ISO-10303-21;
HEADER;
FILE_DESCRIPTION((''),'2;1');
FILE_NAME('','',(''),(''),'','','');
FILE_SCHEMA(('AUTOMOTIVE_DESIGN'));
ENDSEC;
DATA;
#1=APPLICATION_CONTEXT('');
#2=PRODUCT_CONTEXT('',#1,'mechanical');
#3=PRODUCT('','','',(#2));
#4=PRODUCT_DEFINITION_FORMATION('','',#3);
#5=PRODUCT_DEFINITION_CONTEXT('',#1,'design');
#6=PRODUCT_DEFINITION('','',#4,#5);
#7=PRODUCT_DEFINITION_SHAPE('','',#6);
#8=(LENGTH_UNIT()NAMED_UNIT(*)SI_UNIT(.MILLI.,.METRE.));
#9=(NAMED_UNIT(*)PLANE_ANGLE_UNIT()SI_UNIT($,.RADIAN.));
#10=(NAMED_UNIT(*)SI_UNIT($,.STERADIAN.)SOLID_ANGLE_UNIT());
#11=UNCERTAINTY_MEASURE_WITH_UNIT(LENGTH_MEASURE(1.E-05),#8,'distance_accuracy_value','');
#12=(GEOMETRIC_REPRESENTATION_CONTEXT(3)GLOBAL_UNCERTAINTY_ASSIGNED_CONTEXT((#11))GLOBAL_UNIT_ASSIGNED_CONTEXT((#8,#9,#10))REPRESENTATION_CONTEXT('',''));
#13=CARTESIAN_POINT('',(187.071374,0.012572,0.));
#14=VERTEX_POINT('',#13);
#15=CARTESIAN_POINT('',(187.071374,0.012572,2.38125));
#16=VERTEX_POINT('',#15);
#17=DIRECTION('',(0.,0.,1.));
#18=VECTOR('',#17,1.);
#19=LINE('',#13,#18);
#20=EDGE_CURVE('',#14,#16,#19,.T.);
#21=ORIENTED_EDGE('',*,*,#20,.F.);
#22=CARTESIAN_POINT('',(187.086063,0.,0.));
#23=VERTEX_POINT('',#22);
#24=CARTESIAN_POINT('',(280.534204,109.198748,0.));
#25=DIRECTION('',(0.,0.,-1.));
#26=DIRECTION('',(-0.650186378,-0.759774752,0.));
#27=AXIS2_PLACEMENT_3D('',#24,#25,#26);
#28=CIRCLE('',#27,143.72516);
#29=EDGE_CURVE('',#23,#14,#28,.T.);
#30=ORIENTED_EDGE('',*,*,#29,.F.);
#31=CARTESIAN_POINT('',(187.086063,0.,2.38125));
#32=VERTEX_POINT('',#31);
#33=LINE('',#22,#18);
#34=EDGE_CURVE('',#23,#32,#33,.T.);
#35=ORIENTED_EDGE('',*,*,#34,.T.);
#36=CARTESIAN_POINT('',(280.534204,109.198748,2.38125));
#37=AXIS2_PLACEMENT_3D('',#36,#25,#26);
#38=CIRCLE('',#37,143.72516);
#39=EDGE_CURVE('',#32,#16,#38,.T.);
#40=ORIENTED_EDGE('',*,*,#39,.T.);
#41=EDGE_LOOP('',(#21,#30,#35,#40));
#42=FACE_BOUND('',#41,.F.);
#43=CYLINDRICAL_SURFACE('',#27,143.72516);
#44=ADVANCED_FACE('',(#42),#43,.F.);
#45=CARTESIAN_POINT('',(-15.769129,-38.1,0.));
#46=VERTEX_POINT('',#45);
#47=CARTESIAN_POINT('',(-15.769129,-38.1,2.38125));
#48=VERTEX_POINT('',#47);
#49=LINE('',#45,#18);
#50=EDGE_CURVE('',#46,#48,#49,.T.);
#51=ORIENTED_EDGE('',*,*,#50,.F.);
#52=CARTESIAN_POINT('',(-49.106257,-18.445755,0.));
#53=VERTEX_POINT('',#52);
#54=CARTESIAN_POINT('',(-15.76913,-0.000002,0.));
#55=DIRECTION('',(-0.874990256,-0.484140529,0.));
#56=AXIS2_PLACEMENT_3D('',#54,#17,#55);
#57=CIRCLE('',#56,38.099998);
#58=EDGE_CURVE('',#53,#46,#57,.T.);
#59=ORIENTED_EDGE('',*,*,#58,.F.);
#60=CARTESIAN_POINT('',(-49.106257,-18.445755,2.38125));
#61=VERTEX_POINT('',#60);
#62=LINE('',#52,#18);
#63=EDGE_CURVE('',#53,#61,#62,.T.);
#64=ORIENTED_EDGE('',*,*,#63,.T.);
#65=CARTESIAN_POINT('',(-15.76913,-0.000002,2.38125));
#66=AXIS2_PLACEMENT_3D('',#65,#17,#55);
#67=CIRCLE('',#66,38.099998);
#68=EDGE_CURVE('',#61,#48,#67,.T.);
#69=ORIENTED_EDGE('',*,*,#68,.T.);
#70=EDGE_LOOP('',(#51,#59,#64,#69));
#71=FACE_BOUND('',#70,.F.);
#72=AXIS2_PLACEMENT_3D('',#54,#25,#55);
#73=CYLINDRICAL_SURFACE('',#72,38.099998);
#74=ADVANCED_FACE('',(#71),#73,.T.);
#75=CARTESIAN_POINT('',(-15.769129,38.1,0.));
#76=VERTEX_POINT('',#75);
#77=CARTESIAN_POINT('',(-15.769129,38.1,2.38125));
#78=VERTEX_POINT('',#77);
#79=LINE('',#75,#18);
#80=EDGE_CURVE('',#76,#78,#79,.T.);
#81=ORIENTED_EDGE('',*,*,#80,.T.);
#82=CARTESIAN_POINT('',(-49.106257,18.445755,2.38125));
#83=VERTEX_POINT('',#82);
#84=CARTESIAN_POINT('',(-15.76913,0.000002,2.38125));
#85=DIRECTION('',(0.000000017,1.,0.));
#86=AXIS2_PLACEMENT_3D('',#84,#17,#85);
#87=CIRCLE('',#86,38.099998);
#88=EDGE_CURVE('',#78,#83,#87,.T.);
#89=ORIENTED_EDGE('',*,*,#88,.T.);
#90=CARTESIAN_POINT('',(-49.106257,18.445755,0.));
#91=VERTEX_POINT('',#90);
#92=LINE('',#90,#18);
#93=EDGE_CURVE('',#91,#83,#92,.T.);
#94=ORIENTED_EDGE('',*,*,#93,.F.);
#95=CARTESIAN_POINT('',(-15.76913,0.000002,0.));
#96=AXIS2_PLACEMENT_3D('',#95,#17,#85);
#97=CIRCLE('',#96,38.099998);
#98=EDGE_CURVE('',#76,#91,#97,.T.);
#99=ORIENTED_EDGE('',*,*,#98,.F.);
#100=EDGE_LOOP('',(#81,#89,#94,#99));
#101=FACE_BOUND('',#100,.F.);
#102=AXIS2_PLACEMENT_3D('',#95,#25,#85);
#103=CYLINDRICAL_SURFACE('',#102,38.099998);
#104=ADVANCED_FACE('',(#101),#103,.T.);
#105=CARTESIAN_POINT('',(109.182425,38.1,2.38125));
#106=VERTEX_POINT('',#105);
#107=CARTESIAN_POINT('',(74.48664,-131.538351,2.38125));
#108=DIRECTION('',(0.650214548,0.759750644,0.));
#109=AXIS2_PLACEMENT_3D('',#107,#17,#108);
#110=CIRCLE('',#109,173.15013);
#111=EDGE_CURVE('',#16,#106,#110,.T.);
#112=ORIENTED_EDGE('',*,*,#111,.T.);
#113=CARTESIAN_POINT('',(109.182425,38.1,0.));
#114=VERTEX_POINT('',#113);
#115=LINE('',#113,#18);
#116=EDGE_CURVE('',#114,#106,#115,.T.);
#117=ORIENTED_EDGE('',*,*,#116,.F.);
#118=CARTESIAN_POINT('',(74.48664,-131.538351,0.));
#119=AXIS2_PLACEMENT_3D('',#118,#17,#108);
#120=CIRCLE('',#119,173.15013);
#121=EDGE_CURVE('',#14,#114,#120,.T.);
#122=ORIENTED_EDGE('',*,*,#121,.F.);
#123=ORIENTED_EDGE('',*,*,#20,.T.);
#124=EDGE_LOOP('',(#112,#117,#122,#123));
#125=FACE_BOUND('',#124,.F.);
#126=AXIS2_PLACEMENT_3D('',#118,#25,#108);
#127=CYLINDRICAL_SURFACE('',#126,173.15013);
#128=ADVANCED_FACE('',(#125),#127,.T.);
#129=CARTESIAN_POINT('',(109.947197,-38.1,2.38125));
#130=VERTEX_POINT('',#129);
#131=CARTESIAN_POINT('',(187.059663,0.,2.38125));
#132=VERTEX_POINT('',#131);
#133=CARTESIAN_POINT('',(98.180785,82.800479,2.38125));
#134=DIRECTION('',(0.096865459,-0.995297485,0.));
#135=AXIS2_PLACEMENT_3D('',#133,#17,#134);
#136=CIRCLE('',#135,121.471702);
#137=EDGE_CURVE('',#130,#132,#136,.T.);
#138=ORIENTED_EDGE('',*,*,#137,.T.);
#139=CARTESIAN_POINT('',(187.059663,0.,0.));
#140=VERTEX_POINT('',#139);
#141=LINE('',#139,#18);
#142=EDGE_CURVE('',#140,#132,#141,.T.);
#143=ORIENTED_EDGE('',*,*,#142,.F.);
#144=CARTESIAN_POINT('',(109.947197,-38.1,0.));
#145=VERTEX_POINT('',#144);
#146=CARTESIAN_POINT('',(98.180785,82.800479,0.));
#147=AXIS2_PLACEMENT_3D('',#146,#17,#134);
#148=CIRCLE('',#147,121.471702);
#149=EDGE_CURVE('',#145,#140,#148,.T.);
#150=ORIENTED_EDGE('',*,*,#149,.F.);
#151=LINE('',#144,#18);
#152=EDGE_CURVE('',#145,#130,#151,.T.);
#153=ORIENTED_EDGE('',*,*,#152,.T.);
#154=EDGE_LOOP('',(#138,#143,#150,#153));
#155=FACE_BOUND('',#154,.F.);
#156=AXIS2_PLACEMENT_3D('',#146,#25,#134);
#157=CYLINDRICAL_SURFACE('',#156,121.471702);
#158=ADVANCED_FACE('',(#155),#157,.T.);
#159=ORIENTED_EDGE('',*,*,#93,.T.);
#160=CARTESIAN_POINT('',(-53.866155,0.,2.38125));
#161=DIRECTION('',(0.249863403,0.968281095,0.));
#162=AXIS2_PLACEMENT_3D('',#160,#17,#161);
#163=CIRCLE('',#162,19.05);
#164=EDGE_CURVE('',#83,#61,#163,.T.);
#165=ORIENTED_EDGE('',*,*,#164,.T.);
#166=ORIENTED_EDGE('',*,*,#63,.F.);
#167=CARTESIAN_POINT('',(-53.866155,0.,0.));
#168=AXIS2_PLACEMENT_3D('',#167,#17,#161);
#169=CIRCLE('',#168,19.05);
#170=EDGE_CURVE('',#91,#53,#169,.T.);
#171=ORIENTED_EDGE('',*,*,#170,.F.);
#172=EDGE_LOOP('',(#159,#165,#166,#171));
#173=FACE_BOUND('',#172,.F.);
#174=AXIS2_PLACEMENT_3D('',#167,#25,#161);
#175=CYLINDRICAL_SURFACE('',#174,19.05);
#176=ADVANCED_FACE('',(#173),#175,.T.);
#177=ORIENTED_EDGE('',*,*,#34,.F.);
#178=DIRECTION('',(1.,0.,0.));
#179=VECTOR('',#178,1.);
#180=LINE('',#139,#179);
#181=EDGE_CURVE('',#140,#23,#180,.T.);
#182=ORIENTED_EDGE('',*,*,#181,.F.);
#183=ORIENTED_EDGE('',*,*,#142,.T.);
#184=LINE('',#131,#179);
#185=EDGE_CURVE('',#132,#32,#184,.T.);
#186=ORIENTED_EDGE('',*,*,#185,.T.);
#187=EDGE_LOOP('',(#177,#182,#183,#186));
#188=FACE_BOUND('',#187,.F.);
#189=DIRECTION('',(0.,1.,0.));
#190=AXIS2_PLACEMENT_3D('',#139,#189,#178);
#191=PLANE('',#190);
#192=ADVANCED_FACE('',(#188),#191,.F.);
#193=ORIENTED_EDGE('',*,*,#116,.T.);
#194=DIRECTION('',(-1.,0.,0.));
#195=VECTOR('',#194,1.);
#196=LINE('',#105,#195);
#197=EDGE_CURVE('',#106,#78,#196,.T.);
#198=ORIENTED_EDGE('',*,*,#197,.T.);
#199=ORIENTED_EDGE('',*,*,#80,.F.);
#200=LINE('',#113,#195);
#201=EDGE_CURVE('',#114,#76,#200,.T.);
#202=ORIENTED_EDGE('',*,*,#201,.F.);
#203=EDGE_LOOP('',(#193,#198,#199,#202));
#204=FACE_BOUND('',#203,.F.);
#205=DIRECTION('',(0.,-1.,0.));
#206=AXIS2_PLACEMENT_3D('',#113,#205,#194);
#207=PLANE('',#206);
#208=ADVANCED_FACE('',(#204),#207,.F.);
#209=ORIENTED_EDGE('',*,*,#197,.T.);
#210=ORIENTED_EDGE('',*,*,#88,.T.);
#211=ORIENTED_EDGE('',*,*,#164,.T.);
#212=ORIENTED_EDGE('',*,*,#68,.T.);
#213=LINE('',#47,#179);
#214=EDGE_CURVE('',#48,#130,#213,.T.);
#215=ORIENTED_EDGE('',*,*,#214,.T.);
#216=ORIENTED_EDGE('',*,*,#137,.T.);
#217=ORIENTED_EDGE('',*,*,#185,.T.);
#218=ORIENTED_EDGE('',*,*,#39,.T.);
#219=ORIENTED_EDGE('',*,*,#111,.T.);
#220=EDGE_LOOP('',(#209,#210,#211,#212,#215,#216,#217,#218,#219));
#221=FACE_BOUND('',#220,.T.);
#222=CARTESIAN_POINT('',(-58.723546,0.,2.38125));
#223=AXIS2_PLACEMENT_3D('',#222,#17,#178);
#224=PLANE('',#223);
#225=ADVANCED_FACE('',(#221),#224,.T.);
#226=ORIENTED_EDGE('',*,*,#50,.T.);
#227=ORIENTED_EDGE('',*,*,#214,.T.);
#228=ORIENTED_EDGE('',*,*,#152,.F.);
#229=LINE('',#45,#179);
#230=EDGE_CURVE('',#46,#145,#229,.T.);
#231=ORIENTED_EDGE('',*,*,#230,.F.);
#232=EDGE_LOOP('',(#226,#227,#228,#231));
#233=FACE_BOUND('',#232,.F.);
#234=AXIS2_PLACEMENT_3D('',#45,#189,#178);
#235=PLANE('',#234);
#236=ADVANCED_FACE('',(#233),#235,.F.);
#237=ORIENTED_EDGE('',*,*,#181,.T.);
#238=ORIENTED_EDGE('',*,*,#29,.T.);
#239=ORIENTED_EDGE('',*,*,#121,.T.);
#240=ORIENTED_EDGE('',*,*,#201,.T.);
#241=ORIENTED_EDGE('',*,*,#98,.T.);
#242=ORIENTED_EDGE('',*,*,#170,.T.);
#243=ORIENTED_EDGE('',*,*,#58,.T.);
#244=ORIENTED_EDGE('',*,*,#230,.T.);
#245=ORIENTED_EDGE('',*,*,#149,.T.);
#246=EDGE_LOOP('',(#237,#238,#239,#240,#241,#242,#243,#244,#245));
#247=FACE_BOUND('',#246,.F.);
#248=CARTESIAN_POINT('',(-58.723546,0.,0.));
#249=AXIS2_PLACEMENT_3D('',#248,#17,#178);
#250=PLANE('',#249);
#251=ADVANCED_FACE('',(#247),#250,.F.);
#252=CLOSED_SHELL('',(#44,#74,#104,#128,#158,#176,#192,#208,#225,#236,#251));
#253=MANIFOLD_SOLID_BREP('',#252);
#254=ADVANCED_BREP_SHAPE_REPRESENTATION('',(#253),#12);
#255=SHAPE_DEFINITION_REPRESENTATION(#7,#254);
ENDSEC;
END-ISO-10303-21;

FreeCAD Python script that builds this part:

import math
import FreeCAD as App
import Part
import Sketcher
from FreeCAD import Vector
Q = App.Units.Quantity

doc = App.newDocument("Part")
body = doc.addObject("PartDesign::Body", "Body")

sketch1 = body.newObject("Sketcher::SketchObject", "Sketch")
sketch1.AttachmentSupport = (doc.getObject("XY_Plane"), [""])
sketch1.MapMode = "FlatFace"
sketch1.addGeometry([
    Part.ArcOfCircle(Part.Circle(Vector(-53.866155, 0, 0), Vector(0, 0, 1), 19.05), math.radians(75.530571), math.radians(284.469429)),
    Part.ArcOfCircle(Part.Circle(Vector(-15.76913, -0.000002, 0), Vector(0, 0, 1), 38.099998), math.radians(-151.043822), math.radians(-89.999999)),
    Part.LineSegment(Vector(-15.769129, -38.1, 0), Vector(109.947197, -38.1, 0)),
    Part.ArcOfCircle(Part.Circle(Vector(98.180785, 82.800479, 0), Vector(0, 0, 1), 121.471702), math.radians(-84.441302), math.radians(-42.97226)),
    Part.LineSegment(Vector(187.059663, 0, 0), Vector(187.086063, 0, 0)),
    Part.ArcOfCircle(Part.Circle(Vector(280.534204, 109.198748, 0), Vector(0, 0, 1), 143.72516), math.radians(-130.563363), math.radians(-130.555655)),
    Part.ArcOfCircle(Part.Circle(Vector(74.48664, -131.538351, 0), Vector(0, 0, 1), 173.15013), math.radians(49.44222), math.radians(78.440832)),
    Part.LineSegment(Vector(109.182425, 38.1, 0), Vector(-15.769129, 38.1, 0)),
    Part.ArcOfCircle(Part.Circle(Vector(-15.76913, 0.000002, 0), Vector(0, 0, 1), 38.099998), math.radians(89.999999), math.radians(151.043822)),
], False)
sketch1.addConstraint([
    Sketcher.Constraint("Coincident", 0, 2, 1, 1),
    Sketcher.Constraint("Tangent", 1, 2, 2, 1),
    Sketcher.Constraint("Coincident", 2, 2, 3, 1),
    Sketcher.Constraint("Coincident", 3, 2, 4, 1),
    Sketcher.Constraint("Coincident", 4, 2, 5, 2),
    Sketcher.Constraint("Coincident", 5, 1, 6, 1),
    Sketcher.Constraint("Coincident", 6, 2, 7, 1),
    Sketcher.Constraint("Tangent", 7, 2, 8, 1),
    Sketcher.Constraint("Coincident", 8, 2, 0, 1),
    Sketcher.Constraint("Horizontal", 2),
    Sketcher.Constraint("Horizontal", 4),
    Sketcher.Constraint("Horizontal", 7),
    Sketcher.Constraint("Coincident", 8, 3, 1, 3),
    Sketcher.Constraint("Equal", 1, 8),
    Sketcher.Constraint("Symmetric", 0, 2, 8, 2, -1),
    Sketcher.Constraint("PointOnObject", 3, 2, -1),
    Sketcher.Constraint("Radius", 1, Q("1.4999999 in")),
    Sketcher.Constraint("Radius", 0, Q("0.75 in")),
    Sketcher.Constraint("Radius", 3, Q("121.471702 mm")),
    Sketcher.Constraint("Radius", 5, Q("143.72516 mm")),
    Sketcher.Constraint("Radius", 6, Q("173.15013 mm")),
    Sketcher.Constraint("DistanceX", 4, 1, 4, 2, Q("0.0264 mm")),
    Sketcher.Constraint("DistanceX", 0, 3, 3, 3, Q("5.9861 in")),
    Sketcher.Constraint("DistanceX", 3, 2, 5, 3, Q("3.6801 in")),
    Sketcher.Constraint("DistanceY", 6, 3, 5, 3, Q("240.737099 mm")),
    Sketcher.Constraint("DistanceX", 2, 1, 2, 2, Q("125.716326 mm")),
    Sketcher.Constraint("DistanceX", 7, 2, 7, 1, Q("124.951554 mm")),
    Sketcher.Constraint("DistanceX", 1, 3, -1, 1, Q("15.76913 mm")),
    Sketcher.Constraint("DistanceY", -1, 1, 5, 1, Q("0.012572 mm")),
])
pad1 = body.newObject("PartDesign::Pad", "Pad")
pad1.Profile = sketch1
pad1.Length = Q("0.09375 in")

doc.recompute()
